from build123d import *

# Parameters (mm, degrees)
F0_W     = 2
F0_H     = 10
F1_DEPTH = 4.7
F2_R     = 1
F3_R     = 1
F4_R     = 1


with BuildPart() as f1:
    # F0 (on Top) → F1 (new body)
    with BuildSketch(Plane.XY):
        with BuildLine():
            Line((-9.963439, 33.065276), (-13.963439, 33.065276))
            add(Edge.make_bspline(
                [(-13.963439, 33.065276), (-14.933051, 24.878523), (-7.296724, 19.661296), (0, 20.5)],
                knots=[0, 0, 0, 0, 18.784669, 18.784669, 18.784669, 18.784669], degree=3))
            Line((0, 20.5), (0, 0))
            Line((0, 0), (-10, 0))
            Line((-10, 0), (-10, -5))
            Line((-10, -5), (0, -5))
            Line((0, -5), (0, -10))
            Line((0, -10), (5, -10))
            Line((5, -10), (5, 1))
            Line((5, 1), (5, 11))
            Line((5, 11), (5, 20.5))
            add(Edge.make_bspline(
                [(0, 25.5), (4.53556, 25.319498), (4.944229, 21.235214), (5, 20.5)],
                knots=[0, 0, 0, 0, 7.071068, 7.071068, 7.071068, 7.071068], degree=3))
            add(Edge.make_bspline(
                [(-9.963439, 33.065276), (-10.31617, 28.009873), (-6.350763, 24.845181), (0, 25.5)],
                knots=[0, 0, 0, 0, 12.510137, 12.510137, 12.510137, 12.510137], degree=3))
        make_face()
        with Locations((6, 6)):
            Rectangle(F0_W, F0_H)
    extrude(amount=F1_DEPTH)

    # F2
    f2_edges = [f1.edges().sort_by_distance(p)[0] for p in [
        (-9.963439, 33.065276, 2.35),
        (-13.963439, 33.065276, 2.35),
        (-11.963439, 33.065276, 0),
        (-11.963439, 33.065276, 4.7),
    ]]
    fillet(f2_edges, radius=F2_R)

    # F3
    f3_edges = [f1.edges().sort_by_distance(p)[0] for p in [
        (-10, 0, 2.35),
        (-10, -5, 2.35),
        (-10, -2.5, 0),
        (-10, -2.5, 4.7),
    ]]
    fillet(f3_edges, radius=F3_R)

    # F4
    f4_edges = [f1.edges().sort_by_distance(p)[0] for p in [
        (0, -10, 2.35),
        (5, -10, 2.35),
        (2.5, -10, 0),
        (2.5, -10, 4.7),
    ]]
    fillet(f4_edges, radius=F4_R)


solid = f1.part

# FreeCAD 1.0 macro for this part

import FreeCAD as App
import Part
import Sketcher

V = App.Vector


def edges_at(feature, points):
    """Names of the edges that pass closest to the given points."""
    edges = feature.Shape.Edges
    near = lambda p: min(range(len(edges)), key=lambda i: edges[i].distToShape(Part.Vertex(*p))[0])
    return sorted({f"Edge{near(p) + 1}" for p in points})

doc = App.newDocument("Part")
body = doc.addObject("PartDesign::Body", "Body")

sketch1 = body.newObject("Sketcher::SketchObject", "Sketch")
sketch1.AttachmentSupport = (doc.getObject("XY_Plane"), [""])
sketch1.MapMode = "FlatFace"
sketch1.addGeometry([
    Part.LineSegment(V(-9.963439, 33.065276, 0), V(-13.963439, 33.065276, 0)),
    Part.BSplineCurve([V(-13.963439, 33.065276, 0), V(-14.933051, 24.878523, 0), V(-7.296724, 19.661296, 0), V(0, 20.5, 0)], [4, 4], [0, 18.784669], False, 3, [1, 1, 1, 1], False),
    Part.LineSegment(V(0, 20.5, 0), V(0, 0, 0)),
    Part.LineSegment(V(0, 0, 0), V(-10, 0, 0)),
    Part.LineSegment(V(-10, 0, 0), V(-10, -5, 0)),
    Part.LineSegment(V(-10, -5, 0), V(0, -5, 0)),
    Part.LineSegment(V(0, -5, 0), V(0, -10, 0)),
    Part.LineSegment(V(0, -10, 0), V(5, -10, 0)),
    Part.LineSegment(V(5, -10, 0), V(5, 1, 0)),
    Part.LineSegment(V(5, 1, 0), V(7, 1, 0)),
    Part.LineSegment(V(7, 1, 0), V(7, 11, 0)),
    Part.LineSegment(V(7, 11, 0), V(5, 11, 0)),
    Part.LineSegment(V(5, 11, 0), V(5, 20.5, 0)),
    Part.BSplineCurve([V(0, 25.5, 0), V(4.53556, 25.319498, 0), V(4.944229, 21.235214, 0), V(5, 20.5, 0)], [4, 4], [0, 7.071068], False, 3, [1, 1, 1, 1], False),
    Part.BSplineCurve([V(-9.963439, 33.065276, 0), V(-10.31617, 28.009873, 0), V(-6.350763, 24.845181, 0), V(0, 25.5, 0)], [4, 4], [0, 12.510137], False, 3, [1, 1, 1, 1], False),
], False)
sketch1.addConstraint([
    Sketcher.Constraint("Block", 1),
    Sketcher.Constraint("Block", 13),
    Sketcher.Constraint("Block", 14),
    Sketcher.Constraint("Coincident", 0, 2, 1, 1),
    Sketcher.Constraint("Coincident", 1, 2, 2, 1),
    Sketcher.Constraint("Coincident", 2, 2, 3, 1),
    Sketcher.Constraint("Coincident", 3, 2, 4, 1),
    Sketcher.Constraint("Coincident", 4, 2, 5, 1),
    Sketcher.Constraint("Coincident", 5, 2, 6, 1),
    Sketcher.Constraint("Coincident", 6, 2, 7, 1),
    Sketcher.Constraint("Coincident", 7, 2, 8, 1),
    Sketcher.Constraint("Coincident", 8, 2, 9, 1),
    Sketcher.Constraint("Coincident", 9, 2, 10, 1),
    Sketcher.Constraint("Coincident", 10, 2, 11, 1),
    Sketcher.Constraint("Coincident", 11, 2, 12, 1),
    Sketcher.Constraint("Coincident", 12, 2, 13, 2),
    Sketcher.Constraint("Coincident", 14, 1, 0, 1),
    Sketcher.Constraint("Vertical", 2),
    Sketcher.Constraint("Horizontal", 3),
    Sketcher.Constraint("Vertical", 4),
    Sketcher.Constraint("Horizontal", 5),
    Sketcher.Constraint("Vertical", 6),
    Sketcher.Constraint("Horizontal", 7),
    Sketcher.Constraint("Vertical", 8),
    Sketcher.Constraint("Horizontal", 9),
    Sketcher.Constraint("Vertical", 10),
    Sketcher.Constraint("Horizontal", 11),
    Sketcher.Constraint("Vertical", 12),
    Sketcher.Constraint("PointOnObject", 3, 2, -1),
    Sketcher.Constraint("PointOnObject", 5, 2, -2),
    Sketcher.Constraint("Vertical", 8, 2, 11, 2),
    Sketcher.Constraint("Equal", 7, 4),
    Sketcher.Constraint("Equal", 4, 6),
    Sketcher.Constraint("Equal", 5, 10),
    Sketcher.Constraint("DistanceX", 3, 2, 3, 1, 10.0),
    Sketcher.Constraint("DistanceX", 9, 1, 9, 2, 2.0),
    Sketcher.Constraint("DistanceY", 8, 1, 8, 2, 11.0),
])
pad1 = body.newObject("PartDesign::Pad", "Pad")
pad1.Profile = sketch1
pad1.Length = 4.7
doc.recompute()

fillet = body.newObject("PartDesign::Fillet", "Fillet")
fillet.Base = (pad1, edges_at(pad1, [
    (-9.963, 33.065, 2.35),
    (-13.963, 33.065, 2.35),
    (-11.963, 33.065, 0),
    (-11.963, 33.065, 4.7),
]))
fillet.Radius = 1
doc.recompute()

fillet2 = body.newObject("PartDesign::Fillet", "Fillet001")
fillet2.Base = (fillet, edges_at(fillet, [
    (-10, 0, 2.35),
    (-10, -5, 2.35),
    (-10, -2.5, 0),
    (-10, -2.5, 4.7),
]))
fillet2.Radius = 1
doc.recompute()

fillet3 = body.newObject("PartDesign::Fillet", "Fillet002")
fillet3.Base = (fillet2, edges_at(fillet2, [
    (0, -10, 2.35),
    (5, -10, 2.35),
    (2.5, -10, 0),
    (2.5, -10, 4.7),
]))
fillet3.Radius = 1

doc.recompute()
